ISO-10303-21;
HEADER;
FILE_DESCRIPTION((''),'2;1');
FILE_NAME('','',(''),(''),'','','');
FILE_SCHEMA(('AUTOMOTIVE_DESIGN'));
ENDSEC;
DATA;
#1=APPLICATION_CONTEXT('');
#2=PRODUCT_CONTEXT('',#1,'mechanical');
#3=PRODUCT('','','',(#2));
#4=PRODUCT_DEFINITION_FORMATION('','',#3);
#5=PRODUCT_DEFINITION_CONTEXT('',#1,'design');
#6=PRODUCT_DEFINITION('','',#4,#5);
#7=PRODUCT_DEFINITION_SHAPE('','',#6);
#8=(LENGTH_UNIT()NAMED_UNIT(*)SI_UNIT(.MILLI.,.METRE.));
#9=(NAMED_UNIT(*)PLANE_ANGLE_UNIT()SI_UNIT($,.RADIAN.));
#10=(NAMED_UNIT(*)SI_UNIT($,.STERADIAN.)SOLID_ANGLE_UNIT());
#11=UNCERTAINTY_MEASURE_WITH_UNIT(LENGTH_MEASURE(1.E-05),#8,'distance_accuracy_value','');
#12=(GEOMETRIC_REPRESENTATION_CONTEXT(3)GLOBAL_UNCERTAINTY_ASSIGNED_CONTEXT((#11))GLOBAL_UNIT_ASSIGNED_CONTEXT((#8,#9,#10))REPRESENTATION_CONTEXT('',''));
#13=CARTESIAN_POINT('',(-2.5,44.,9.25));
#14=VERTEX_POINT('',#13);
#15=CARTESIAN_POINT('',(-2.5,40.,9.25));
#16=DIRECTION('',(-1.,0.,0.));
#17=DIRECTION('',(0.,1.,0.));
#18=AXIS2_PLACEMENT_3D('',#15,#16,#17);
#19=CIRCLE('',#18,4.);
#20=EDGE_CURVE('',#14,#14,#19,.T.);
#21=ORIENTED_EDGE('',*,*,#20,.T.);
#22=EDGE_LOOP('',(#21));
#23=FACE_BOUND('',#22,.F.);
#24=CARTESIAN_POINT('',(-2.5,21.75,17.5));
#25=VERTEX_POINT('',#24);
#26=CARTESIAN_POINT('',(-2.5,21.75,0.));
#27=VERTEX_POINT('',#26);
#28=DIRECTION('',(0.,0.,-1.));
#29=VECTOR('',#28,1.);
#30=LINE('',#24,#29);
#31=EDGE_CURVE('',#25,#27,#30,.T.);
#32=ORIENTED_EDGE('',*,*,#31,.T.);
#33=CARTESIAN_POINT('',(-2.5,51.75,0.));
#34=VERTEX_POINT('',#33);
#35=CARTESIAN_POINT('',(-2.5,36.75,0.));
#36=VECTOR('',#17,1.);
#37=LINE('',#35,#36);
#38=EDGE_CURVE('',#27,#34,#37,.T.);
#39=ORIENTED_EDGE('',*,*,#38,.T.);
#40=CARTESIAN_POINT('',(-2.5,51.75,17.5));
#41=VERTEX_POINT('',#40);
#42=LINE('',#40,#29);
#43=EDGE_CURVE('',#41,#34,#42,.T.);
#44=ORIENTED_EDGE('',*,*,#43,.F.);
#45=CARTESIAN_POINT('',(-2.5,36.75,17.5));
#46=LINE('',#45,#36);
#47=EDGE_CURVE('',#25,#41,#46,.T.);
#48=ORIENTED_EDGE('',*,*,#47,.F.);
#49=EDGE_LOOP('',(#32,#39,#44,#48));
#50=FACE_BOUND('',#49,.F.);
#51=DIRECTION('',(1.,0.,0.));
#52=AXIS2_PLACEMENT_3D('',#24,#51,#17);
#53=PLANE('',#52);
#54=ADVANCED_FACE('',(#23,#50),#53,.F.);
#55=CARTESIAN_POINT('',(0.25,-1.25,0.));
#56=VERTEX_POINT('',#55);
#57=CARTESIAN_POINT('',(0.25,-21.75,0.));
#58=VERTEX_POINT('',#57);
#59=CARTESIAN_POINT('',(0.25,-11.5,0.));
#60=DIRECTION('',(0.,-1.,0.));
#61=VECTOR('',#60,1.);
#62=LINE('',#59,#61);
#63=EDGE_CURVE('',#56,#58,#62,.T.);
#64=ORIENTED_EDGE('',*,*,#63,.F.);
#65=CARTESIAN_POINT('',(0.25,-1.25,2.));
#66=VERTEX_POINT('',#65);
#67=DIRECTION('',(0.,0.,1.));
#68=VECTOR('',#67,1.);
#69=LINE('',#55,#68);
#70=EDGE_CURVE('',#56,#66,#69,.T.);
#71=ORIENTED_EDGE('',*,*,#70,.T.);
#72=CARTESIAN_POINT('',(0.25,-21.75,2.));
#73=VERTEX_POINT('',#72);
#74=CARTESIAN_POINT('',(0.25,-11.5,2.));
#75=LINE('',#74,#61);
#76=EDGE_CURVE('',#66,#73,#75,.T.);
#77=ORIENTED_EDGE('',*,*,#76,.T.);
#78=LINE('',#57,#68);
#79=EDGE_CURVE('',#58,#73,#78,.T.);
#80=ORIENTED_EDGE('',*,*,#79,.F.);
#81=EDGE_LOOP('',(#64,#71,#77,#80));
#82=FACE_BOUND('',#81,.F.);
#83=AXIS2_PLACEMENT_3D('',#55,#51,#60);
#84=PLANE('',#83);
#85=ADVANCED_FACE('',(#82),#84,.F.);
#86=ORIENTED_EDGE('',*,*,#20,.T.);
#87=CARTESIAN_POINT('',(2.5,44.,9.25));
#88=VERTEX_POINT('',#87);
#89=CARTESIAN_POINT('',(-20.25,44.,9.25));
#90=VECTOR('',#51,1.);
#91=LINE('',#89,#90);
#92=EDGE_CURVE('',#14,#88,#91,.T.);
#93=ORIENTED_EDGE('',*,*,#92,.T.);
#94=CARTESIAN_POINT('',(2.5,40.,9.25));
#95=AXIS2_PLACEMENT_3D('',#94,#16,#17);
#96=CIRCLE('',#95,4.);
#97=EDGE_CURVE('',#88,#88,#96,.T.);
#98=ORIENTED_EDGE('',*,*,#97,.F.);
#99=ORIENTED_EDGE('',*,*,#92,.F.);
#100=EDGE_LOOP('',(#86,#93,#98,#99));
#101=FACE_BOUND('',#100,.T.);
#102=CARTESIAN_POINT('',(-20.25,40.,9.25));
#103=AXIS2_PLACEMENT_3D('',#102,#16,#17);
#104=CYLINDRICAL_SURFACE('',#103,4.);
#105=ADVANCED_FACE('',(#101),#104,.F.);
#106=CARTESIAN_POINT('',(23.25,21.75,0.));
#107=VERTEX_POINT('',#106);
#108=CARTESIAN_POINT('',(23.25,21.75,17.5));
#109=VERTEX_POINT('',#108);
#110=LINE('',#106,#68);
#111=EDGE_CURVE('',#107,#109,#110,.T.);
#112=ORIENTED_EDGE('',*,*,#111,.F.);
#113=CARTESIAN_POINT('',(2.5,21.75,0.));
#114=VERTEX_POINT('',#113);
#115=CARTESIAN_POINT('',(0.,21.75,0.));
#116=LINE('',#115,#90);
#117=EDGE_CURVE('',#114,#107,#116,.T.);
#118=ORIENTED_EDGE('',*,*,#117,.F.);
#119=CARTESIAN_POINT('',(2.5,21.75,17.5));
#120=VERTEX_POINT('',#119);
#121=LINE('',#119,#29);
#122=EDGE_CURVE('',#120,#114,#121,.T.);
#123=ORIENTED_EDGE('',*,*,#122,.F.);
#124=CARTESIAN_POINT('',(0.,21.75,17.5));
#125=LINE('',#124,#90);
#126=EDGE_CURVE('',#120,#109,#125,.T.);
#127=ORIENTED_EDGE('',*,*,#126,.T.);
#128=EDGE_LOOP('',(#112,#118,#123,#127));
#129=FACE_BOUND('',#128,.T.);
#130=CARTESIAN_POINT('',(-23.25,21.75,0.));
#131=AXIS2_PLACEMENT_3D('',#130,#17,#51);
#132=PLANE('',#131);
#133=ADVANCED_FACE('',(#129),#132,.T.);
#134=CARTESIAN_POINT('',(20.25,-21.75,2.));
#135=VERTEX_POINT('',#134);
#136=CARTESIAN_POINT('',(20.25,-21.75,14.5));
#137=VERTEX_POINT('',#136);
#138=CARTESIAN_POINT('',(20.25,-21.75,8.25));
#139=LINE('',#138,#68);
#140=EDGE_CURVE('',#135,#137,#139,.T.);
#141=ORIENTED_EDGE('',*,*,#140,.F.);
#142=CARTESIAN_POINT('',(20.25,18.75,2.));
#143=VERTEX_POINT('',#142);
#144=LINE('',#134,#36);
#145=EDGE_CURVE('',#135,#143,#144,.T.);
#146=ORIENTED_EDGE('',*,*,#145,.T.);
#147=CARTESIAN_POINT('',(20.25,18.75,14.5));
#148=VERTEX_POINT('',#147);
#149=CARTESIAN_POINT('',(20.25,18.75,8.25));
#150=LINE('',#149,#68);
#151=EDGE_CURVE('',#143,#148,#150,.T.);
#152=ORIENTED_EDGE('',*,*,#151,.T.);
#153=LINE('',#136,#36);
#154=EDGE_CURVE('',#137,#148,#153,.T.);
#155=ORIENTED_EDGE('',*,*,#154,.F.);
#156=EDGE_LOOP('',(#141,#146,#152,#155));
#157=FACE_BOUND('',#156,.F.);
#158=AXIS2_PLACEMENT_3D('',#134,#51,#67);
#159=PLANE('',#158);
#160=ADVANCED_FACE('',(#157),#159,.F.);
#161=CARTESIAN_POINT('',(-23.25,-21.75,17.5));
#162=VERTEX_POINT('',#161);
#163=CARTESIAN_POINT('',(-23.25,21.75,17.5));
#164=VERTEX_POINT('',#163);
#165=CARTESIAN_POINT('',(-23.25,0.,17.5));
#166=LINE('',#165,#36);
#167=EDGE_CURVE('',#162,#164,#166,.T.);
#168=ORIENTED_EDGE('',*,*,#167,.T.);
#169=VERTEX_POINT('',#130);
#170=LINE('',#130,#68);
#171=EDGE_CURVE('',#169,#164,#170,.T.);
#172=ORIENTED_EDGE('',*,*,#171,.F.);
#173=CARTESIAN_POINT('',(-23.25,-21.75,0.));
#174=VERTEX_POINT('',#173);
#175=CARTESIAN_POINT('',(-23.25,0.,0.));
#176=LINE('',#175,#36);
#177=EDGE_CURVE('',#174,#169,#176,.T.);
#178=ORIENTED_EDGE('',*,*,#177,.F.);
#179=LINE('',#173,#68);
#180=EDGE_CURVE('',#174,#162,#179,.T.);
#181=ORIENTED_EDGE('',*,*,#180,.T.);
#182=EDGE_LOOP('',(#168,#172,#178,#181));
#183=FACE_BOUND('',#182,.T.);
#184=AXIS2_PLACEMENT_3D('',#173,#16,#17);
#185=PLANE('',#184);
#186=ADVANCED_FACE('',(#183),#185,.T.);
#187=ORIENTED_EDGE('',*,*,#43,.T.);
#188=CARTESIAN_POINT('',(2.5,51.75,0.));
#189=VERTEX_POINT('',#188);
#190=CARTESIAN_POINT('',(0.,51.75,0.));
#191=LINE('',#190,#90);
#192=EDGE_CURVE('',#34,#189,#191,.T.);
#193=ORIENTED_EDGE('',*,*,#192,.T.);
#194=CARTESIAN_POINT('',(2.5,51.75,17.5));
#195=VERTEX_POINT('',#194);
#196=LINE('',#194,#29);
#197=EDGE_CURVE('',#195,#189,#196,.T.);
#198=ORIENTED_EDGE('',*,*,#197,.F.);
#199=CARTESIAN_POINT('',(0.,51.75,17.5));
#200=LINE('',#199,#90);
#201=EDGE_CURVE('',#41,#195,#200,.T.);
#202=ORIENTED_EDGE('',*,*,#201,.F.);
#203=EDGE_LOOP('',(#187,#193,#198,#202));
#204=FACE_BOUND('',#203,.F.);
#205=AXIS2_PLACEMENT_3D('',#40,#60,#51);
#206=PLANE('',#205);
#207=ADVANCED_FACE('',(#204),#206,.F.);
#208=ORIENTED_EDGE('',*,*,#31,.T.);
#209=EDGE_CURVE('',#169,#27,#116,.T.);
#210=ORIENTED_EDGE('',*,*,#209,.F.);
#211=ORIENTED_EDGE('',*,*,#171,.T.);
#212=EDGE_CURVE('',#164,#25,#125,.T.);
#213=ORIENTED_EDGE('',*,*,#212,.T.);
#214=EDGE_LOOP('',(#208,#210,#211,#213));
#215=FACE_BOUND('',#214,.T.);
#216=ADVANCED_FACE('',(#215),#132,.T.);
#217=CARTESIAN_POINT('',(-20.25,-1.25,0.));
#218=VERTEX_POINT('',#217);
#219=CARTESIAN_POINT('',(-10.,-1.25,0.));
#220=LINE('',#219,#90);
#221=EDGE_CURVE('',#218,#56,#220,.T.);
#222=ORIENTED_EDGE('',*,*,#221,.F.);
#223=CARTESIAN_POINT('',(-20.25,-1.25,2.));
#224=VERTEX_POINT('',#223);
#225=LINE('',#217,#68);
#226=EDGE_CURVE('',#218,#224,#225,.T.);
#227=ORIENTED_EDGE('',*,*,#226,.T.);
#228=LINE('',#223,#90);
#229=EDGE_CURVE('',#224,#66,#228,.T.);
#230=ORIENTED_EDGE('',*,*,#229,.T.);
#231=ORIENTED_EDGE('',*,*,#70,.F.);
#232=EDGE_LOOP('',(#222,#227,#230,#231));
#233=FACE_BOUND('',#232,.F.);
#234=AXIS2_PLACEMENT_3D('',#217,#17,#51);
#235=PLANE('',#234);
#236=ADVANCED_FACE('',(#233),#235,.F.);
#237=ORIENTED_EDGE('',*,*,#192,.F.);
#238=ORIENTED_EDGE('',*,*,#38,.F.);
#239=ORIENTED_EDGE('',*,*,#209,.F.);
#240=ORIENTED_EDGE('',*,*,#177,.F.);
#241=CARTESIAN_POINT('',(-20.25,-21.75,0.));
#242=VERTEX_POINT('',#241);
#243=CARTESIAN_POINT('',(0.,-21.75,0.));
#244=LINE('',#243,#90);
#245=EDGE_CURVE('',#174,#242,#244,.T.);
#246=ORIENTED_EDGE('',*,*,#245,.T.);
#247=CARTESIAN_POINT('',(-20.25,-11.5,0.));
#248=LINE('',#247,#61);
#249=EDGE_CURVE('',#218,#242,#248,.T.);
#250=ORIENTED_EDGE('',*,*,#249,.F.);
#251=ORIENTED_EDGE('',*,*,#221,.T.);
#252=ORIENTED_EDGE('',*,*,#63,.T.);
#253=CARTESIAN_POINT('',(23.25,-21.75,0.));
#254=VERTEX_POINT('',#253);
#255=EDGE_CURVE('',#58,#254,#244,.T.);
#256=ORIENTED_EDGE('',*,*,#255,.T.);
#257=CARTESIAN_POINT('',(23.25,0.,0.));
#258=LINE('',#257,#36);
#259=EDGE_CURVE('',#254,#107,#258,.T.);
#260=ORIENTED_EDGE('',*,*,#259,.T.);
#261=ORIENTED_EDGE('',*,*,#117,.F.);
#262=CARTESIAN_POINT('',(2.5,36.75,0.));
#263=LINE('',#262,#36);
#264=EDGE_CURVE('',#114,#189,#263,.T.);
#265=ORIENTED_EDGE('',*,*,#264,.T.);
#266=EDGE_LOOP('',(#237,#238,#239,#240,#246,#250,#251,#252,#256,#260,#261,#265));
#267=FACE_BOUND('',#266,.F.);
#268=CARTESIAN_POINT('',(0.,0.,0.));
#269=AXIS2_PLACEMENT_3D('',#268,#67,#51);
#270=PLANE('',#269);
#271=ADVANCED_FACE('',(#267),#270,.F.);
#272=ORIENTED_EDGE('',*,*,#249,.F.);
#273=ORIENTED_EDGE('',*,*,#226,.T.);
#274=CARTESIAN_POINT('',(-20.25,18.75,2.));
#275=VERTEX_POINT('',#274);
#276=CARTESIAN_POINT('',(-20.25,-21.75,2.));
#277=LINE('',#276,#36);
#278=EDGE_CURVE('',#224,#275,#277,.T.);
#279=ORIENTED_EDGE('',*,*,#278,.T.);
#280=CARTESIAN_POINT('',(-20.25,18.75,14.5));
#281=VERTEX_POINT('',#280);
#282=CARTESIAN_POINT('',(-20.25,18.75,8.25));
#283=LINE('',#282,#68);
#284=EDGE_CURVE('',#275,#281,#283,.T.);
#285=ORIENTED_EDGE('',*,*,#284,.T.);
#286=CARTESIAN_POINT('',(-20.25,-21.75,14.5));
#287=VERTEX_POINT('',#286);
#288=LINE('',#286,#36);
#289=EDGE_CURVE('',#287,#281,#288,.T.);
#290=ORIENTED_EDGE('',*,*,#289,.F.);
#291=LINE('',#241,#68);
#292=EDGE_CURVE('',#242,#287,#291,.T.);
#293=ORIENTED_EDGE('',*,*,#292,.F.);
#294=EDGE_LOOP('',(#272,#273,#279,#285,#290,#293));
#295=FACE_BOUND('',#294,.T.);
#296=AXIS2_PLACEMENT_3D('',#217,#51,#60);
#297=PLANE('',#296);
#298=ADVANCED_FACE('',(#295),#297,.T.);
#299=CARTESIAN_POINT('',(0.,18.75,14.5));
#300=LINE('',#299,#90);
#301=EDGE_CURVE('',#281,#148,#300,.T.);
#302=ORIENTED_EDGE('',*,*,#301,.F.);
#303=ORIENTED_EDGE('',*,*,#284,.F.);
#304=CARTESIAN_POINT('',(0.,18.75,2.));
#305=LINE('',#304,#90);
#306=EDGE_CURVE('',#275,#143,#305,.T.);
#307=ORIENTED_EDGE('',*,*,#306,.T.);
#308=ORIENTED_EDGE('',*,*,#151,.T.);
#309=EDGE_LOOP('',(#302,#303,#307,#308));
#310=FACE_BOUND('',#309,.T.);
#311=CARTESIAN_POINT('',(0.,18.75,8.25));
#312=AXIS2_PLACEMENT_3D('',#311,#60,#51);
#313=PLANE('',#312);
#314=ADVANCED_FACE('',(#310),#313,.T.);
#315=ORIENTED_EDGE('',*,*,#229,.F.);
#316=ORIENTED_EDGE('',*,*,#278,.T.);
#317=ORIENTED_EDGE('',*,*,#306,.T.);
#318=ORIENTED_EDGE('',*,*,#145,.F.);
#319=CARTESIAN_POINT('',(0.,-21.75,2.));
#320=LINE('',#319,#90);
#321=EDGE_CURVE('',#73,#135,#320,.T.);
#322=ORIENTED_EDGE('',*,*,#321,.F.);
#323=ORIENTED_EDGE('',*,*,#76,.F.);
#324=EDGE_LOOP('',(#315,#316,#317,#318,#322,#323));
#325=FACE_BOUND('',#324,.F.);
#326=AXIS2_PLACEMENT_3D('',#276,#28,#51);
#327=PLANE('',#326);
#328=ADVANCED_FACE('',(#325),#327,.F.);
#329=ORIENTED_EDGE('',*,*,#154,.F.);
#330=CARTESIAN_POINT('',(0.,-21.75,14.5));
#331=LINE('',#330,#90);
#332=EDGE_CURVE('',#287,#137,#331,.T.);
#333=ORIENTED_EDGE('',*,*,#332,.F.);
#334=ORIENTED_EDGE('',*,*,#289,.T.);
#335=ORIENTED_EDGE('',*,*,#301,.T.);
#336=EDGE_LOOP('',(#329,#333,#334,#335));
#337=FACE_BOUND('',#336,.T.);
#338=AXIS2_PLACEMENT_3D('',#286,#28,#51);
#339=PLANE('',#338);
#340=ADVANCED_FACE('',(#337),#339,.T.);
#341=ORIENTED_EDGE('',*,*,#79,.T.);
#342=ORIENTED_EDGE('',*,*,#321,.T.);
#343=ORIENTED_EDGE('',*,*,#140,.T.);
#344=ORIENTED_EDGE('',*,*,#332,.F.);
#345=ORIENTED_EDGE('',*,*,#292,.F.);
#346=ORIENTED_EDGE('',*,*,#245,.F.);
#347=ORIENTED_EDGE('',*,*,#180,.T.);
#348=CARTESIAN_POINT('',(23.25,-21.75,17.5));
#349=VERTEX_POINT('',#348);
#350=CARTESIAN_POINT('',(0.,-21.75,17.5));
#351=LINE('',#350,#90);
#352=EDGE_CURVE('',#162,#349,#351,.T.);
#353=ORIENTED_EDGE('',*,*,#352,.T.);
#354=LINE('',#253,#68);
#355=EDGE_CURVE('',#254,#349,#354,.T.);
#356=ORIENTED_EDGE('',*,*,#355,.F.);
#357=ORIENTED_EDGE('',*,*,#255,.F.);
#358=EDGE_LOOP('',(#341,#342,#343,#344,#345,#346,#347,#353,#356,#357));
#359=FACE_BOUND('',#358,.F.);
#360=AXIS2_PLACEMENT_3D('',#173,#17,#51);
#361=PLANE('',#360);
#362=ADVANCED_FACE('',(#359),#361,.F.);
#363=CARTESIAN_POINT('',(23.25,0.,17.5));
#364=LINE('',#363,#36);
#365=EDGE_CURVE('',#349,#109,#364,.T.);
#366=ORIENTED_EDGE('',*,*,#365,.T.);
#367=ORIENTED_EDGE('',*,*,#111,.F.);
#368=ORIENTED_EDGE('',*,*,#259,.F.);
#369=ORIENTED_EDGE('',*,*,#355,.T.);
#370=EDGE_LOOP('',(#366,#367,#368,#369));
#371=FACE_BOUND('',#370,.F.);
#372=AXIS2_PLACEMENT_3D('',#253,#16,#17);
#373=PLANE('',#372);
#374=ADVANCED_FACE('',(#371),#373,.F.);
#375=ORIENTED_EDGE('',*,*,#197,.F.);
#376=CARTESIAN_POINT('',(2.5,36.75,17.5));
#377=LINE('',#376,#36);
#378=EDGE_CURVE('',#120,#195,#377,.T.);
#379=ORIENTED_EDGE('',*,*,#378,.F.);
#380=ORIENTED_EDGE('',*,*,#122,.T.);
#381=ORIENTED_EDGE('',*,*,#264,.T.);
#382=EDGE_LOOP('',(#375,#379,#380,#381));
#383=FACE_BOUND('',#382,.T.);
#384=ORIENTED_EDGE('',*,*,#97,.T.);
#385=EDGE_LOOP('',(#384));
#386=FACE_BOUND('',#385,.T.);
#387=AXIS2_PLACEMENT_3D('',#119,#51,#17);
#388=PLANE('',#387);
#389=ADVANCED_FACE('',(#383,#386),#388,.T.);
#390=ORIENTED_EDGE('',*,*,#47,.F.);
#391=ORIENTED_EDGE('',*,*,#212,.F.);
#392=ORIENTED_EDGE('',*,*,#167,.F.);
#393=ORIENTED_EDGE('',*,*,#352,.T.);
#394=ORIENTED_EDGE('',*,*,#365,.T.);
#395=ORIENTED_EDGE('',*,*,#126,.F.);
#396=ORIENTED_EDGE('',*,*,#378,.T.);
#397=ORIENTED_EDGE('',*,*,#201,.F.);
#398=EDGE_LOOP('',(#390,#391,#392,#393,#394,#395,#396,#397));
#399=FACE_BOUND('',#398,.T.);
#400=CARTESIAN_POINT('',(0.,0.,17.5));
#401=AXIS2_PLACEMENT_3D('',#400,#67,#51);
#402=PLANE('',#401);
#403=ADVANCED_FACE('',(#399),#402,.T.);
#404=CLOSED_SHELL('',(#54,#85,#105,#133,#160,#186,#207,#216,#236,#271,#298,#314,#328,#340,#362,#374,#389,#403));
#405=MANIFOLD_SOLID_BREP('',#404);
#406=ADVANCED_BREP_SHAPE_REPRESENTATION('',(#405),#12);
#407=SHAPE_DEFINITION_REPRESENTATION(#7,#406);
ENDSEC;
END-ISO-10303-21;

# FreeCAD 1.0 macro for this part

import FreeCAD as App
import Part
import Sketcher
from FreeCAD import Vector


def add_polygon(sketch, points):
    """Adds a closed chain of lines whose ends are joined by coincident constraints."""
    first, n = sketch.GeometryCount, len(points)
    for a, b in zip(points, points[1:] + points[:1]):
        sketch.addGeometry(Part.LineSegment(App.Vector(*a, 0), App.Vector(*b, 0)), False)
    for i in range(n):
        sketch.addConstraint(Sketcher.Constraint("Coincident", first + i, 2, first + (i + 1) % n, 1))

doc = App.newDocument("Part")
params = doc.addObject("Spreadsheet::Sheet", "Params")
for row, (alias, value) in enumerate([
    ("sketch1_width", "46.5 mm"),
    ("sketch1_height", "43.5 mm"),
    ("pad1_length", "17.5 mm"),
    ("sketch2_width", "40.5 mm"),
    ("sketch2_height", "12.5 mm"),
    ("pocket1_length", "40.5 mm"),
    ("sketch3_width", "20.5 mm"),
    ("pocket2_length", "3 mm"),
    ("sketch4_width", "5 mm"),
    ("sketch4_height", "30 mm"),
    ("pad2_length", "17.5 mm"),
    ("sketch5_diameter", "8 mm"),
    ("pocket3_length", "5 mm"),
    ("sketch6_diameter", "8 mm"),
    ("pocket4_length", "100 mm"),
], start=1):
    params.set(f"A{row}", alias)
    params.set(f"B{row}", "=" + value)
    params.setAlias(f"B{row}", alias)

body = doc.addObject("PartDesign::Body", "Body")

sketch1 = body.newObject("Sketcher::SketchObject", "Sketch")
sketch1.AttachmentSupport = (doc.getObject("XY_Plane"), [""])
sketch1.MapMode = "FlatFace"
add_polygon(sketch1, [(-23, 22), (-23, -22), (23, -22), (23, 22)])
sketch1.addConstraint(Sketcher.Constraint("Vertical", 0))
sketch1.addConstraint(Sketcher.Constraint("Horizontal", 1))
sketch1.addConstraint(Sketcher.Constraint("Vertical", 2))
sketch1.addConstraint(Sketcher.Constraint("Horizontal", 3))
sketch1.addConstraint(Sketcher.Constraint("Symmetric", 0, 2, 2, 2, -1, 1))
sketch1.addConstraint(Sketcher.Constraint("DistanceX", 1, 1, 1, 2, 46.5))
sketch1.addConstraint(Sketcher.Constraint("DistanceY", 0, 2, 0, 1, 43.5))
sketch1.setExpression("Constraints[9]", "Params.sketch1_width")
sketch1.setExpression("Constraints[10]", "Params.sketch1_height")
pad1 = body.newObject("PartDesign::Pad", "Pad")
pad1.Profile = sketch1
pad1.setExpression("Length", "Params.pad1_length")

sketch2 = body.newObject("Sketcher::SketchObject", "Sketch001")
sketch2.AttachmentSupport = (doc.getObject("XZ_Plane"), [""])
sketch2.MapMode = "FlatFace"
sketch2.AttachmentOffset = App.Placement(Vector(0, 0, 21.75), App.Rotation())
add_polygon(sketch2, [(-20, 14), (-20, 2), (20, 2), (20, 14)])
sketch2.addConstraint(Sketcher.Constraint("Vertical", 0))
sketch2.addConstraint(Sketcher.Constraint("Horizontal", 1))
sketch2.addConstraint(Sketcher.Constraint("Vertical", 2))
sketch2.addConstraint(Sketcher.Constraint("Horizontal", 3))
sketch2.addConstraint(Sketcher.Constraint("DistanceX", 1, 1, 1, 2, 40.5))
sketch2.addConstraint(Sketcher.Constraint("DistanceY", 0, 2, 0, 1, 12.5))
sketch2.addConstraint(Sketcher.Constraint("DistanceY", -1, 1, 0, 2, 2.0))
sketch2.addConstraint(Sketcher.Constraint("DistanceX", 0, 2, -1, 1, 20.25))
sketch2.setExpression("Constraints[8]", "Params.sketch2_width")
sketch2.setExpression("Constraints[9]", "Params.sketch2_height")
pocket1 = body.newObject("PartDesign::Pocket", "Pocket")
pocket1.Profile = sketch2
pocket1.setExpression("Length", "Params.pocket1_length")

sketch3 = body.newObject("Sketcher::SketchObject", "Sketch002")
sketch3.AttachmentSupport = (doc.getObject("XY_Plane"), [""])
sketch3.MapMode = "FlatFace"
add_polygon(sketch3, [(-20, -22), (-20, -1), (0, -1), (0, -22)])
sketch3.addConstraint(Sketcher.Constraint("Vertical", 0))
sketch3.addConstraint(Sketcher.Constraint("Horizontal", 1))
sketch3.addConstraint(Sketcher.Constraint("Vertical", 2))
sketch3.addConstraint(Sketcher.Constraint("Horizontal", 3))
sketch3.addConstraint(Sketcher.Constraint("Equal", 3, 0))
sketch3.addConstraint(Sketcher.Constraint("DistanceX", 1, 1, 1, 2, 20.5))
sketch3.addConstraint(Sketcher.Constraint("DistanceX", 0, 2, -1, 1, 20.25))
sketch3.addConstraint(Sketcher.Constraint("DistanceY", 0, 2, -1, 1, 1.25))
sketch3.setExpression("Constraints[9]", "Params.sketch3_width")
pocket2 = body.newObject("PartDesign::Pocket", "Pocket001")
pocket2.Profile = sketch3
pocket2.setExpression("Length", "Params.pocket2_length")
pocket2.Reversed = True

sketch4 = body.newObject("Sketcher::SketchObject", "Sketch003")
sketch4.AttachmentSupport = (doc.getObject("XY_Plane"), [""])
sketch4.MapMode = "FlatFace"
sketch4.AttachmentOffset = App.Placement(Vector(0, 0, 17.5), App.Rotation())
add_polygon(sketch4, [(-2, 52), (-2, 22), (2, 22), (2, 52)])
sketch4.addConstraint(Sketcher.Constraint("Vertical", 0))
sketch4.addConstraint(Sketcher.Constraint("Horizontal", 1))
sketch4.addConstraint(Sketcher.Constraint("Vertical", 2))
sketch4.addConstraint(Sketcher.Constraint("Horizontal", 3))
sketch4.addConstraint(Sketcher.Constraint("DistanceX", 1, 1, 1, 2, 5.0))
sketch4.addConstraint(Sketcher.Constraint("DistanceY", 0, 2, 0, 1, 30.0))
sketch4.addConstraint(Sketcher.Constraint("DistanceX", 0, 2, -1, 1, 2.5))
sketch4.addConstraint(Sketcher.Constraint("DistanceY", -1, 1, 0, 2, 21.75))
sketch4.setExpression("Constraints[8]", "Params.sketch4_width")
sketch4.setExpression("Constraints[9]", "Params.sketch4_height")
pad2 = body.newObject("PartDesign::Pad", "Pad001")
pad2.Profile = sketch4
pad2.setExpression("Length", "Params.pad2_length")
pad2.Reversed = True

sketch5 = body.newObject("Sketcher::SketchObject", "Sketch004")
sketch5.AttachmentSupport = (doc.getObject("YZ_Plane"), [""])
sketch5.MapMode = "FlatFace"
sketch5.AttachmentOffset = App.Placement(Vector(0, 0, -20.25), App.Rotation())
sketch5.addGeometry(Part.Circle(Vector(40, 9.2, 0), Vector(0, 0, 1), 4), False)
sketch5.addConstraint(Sketcher.Constraint("Diameter", 0, 8.0))
sketch5.addConstraint(Sketcher.Constraint("DistanceX", -1, 1, 0, 3, 40.0))
sketch5.addConstraint(Sketcher.Constraint("DistanceY", -1, 1, 0, 3, 9.25))
sketch5.setExpression("Constraints[0]", "Params.sketch5_diameter")
pocket3 = body.newObject("PartDesign::Pocket", "Pocket002")
pocket3.Profile = sketch5
pocket3.setExpression("Length", "Params.pocket3_length")

sketch6 = body.newObject("Sketcher::SketchObject", "Sketch005")
sketch6.AttachmentSupport = (doc.getObject("YZ_Plane"), [""])
sketch6.MapMode = "FlatFace"
sketch6.AttachmentOffset = App.Placement(Vector(0, 0, -20.25), App.Rotation())
sketch6.addGeometry(Part.Circle(Vector(40, 9.2, 0), Vector(0, 0, 1), 4), False)
sketch6.addConstraint(Sketcher.Constraint("Diameter", 0, 8.0))
sketch6.addConstraint(Sketcher.Constraint("DistanceX", -1, 1, 0, 3, 40.0))
sketch6.addConstraint(Sketcher.Constraint("DistanceY", -1, 1, 0, 3, 9.25))
sketch6.setExpression("Constraints[0]", "Params.sketch6_diameter")
pocket4 = body.newObject("PartDesign::Pocket", "Pocket003")
pocket4.Profile = sketch6
pocket4.setExpression("Length", "Params.pocket4_length")
pocket4.Reversed = True

doc.recompute()
